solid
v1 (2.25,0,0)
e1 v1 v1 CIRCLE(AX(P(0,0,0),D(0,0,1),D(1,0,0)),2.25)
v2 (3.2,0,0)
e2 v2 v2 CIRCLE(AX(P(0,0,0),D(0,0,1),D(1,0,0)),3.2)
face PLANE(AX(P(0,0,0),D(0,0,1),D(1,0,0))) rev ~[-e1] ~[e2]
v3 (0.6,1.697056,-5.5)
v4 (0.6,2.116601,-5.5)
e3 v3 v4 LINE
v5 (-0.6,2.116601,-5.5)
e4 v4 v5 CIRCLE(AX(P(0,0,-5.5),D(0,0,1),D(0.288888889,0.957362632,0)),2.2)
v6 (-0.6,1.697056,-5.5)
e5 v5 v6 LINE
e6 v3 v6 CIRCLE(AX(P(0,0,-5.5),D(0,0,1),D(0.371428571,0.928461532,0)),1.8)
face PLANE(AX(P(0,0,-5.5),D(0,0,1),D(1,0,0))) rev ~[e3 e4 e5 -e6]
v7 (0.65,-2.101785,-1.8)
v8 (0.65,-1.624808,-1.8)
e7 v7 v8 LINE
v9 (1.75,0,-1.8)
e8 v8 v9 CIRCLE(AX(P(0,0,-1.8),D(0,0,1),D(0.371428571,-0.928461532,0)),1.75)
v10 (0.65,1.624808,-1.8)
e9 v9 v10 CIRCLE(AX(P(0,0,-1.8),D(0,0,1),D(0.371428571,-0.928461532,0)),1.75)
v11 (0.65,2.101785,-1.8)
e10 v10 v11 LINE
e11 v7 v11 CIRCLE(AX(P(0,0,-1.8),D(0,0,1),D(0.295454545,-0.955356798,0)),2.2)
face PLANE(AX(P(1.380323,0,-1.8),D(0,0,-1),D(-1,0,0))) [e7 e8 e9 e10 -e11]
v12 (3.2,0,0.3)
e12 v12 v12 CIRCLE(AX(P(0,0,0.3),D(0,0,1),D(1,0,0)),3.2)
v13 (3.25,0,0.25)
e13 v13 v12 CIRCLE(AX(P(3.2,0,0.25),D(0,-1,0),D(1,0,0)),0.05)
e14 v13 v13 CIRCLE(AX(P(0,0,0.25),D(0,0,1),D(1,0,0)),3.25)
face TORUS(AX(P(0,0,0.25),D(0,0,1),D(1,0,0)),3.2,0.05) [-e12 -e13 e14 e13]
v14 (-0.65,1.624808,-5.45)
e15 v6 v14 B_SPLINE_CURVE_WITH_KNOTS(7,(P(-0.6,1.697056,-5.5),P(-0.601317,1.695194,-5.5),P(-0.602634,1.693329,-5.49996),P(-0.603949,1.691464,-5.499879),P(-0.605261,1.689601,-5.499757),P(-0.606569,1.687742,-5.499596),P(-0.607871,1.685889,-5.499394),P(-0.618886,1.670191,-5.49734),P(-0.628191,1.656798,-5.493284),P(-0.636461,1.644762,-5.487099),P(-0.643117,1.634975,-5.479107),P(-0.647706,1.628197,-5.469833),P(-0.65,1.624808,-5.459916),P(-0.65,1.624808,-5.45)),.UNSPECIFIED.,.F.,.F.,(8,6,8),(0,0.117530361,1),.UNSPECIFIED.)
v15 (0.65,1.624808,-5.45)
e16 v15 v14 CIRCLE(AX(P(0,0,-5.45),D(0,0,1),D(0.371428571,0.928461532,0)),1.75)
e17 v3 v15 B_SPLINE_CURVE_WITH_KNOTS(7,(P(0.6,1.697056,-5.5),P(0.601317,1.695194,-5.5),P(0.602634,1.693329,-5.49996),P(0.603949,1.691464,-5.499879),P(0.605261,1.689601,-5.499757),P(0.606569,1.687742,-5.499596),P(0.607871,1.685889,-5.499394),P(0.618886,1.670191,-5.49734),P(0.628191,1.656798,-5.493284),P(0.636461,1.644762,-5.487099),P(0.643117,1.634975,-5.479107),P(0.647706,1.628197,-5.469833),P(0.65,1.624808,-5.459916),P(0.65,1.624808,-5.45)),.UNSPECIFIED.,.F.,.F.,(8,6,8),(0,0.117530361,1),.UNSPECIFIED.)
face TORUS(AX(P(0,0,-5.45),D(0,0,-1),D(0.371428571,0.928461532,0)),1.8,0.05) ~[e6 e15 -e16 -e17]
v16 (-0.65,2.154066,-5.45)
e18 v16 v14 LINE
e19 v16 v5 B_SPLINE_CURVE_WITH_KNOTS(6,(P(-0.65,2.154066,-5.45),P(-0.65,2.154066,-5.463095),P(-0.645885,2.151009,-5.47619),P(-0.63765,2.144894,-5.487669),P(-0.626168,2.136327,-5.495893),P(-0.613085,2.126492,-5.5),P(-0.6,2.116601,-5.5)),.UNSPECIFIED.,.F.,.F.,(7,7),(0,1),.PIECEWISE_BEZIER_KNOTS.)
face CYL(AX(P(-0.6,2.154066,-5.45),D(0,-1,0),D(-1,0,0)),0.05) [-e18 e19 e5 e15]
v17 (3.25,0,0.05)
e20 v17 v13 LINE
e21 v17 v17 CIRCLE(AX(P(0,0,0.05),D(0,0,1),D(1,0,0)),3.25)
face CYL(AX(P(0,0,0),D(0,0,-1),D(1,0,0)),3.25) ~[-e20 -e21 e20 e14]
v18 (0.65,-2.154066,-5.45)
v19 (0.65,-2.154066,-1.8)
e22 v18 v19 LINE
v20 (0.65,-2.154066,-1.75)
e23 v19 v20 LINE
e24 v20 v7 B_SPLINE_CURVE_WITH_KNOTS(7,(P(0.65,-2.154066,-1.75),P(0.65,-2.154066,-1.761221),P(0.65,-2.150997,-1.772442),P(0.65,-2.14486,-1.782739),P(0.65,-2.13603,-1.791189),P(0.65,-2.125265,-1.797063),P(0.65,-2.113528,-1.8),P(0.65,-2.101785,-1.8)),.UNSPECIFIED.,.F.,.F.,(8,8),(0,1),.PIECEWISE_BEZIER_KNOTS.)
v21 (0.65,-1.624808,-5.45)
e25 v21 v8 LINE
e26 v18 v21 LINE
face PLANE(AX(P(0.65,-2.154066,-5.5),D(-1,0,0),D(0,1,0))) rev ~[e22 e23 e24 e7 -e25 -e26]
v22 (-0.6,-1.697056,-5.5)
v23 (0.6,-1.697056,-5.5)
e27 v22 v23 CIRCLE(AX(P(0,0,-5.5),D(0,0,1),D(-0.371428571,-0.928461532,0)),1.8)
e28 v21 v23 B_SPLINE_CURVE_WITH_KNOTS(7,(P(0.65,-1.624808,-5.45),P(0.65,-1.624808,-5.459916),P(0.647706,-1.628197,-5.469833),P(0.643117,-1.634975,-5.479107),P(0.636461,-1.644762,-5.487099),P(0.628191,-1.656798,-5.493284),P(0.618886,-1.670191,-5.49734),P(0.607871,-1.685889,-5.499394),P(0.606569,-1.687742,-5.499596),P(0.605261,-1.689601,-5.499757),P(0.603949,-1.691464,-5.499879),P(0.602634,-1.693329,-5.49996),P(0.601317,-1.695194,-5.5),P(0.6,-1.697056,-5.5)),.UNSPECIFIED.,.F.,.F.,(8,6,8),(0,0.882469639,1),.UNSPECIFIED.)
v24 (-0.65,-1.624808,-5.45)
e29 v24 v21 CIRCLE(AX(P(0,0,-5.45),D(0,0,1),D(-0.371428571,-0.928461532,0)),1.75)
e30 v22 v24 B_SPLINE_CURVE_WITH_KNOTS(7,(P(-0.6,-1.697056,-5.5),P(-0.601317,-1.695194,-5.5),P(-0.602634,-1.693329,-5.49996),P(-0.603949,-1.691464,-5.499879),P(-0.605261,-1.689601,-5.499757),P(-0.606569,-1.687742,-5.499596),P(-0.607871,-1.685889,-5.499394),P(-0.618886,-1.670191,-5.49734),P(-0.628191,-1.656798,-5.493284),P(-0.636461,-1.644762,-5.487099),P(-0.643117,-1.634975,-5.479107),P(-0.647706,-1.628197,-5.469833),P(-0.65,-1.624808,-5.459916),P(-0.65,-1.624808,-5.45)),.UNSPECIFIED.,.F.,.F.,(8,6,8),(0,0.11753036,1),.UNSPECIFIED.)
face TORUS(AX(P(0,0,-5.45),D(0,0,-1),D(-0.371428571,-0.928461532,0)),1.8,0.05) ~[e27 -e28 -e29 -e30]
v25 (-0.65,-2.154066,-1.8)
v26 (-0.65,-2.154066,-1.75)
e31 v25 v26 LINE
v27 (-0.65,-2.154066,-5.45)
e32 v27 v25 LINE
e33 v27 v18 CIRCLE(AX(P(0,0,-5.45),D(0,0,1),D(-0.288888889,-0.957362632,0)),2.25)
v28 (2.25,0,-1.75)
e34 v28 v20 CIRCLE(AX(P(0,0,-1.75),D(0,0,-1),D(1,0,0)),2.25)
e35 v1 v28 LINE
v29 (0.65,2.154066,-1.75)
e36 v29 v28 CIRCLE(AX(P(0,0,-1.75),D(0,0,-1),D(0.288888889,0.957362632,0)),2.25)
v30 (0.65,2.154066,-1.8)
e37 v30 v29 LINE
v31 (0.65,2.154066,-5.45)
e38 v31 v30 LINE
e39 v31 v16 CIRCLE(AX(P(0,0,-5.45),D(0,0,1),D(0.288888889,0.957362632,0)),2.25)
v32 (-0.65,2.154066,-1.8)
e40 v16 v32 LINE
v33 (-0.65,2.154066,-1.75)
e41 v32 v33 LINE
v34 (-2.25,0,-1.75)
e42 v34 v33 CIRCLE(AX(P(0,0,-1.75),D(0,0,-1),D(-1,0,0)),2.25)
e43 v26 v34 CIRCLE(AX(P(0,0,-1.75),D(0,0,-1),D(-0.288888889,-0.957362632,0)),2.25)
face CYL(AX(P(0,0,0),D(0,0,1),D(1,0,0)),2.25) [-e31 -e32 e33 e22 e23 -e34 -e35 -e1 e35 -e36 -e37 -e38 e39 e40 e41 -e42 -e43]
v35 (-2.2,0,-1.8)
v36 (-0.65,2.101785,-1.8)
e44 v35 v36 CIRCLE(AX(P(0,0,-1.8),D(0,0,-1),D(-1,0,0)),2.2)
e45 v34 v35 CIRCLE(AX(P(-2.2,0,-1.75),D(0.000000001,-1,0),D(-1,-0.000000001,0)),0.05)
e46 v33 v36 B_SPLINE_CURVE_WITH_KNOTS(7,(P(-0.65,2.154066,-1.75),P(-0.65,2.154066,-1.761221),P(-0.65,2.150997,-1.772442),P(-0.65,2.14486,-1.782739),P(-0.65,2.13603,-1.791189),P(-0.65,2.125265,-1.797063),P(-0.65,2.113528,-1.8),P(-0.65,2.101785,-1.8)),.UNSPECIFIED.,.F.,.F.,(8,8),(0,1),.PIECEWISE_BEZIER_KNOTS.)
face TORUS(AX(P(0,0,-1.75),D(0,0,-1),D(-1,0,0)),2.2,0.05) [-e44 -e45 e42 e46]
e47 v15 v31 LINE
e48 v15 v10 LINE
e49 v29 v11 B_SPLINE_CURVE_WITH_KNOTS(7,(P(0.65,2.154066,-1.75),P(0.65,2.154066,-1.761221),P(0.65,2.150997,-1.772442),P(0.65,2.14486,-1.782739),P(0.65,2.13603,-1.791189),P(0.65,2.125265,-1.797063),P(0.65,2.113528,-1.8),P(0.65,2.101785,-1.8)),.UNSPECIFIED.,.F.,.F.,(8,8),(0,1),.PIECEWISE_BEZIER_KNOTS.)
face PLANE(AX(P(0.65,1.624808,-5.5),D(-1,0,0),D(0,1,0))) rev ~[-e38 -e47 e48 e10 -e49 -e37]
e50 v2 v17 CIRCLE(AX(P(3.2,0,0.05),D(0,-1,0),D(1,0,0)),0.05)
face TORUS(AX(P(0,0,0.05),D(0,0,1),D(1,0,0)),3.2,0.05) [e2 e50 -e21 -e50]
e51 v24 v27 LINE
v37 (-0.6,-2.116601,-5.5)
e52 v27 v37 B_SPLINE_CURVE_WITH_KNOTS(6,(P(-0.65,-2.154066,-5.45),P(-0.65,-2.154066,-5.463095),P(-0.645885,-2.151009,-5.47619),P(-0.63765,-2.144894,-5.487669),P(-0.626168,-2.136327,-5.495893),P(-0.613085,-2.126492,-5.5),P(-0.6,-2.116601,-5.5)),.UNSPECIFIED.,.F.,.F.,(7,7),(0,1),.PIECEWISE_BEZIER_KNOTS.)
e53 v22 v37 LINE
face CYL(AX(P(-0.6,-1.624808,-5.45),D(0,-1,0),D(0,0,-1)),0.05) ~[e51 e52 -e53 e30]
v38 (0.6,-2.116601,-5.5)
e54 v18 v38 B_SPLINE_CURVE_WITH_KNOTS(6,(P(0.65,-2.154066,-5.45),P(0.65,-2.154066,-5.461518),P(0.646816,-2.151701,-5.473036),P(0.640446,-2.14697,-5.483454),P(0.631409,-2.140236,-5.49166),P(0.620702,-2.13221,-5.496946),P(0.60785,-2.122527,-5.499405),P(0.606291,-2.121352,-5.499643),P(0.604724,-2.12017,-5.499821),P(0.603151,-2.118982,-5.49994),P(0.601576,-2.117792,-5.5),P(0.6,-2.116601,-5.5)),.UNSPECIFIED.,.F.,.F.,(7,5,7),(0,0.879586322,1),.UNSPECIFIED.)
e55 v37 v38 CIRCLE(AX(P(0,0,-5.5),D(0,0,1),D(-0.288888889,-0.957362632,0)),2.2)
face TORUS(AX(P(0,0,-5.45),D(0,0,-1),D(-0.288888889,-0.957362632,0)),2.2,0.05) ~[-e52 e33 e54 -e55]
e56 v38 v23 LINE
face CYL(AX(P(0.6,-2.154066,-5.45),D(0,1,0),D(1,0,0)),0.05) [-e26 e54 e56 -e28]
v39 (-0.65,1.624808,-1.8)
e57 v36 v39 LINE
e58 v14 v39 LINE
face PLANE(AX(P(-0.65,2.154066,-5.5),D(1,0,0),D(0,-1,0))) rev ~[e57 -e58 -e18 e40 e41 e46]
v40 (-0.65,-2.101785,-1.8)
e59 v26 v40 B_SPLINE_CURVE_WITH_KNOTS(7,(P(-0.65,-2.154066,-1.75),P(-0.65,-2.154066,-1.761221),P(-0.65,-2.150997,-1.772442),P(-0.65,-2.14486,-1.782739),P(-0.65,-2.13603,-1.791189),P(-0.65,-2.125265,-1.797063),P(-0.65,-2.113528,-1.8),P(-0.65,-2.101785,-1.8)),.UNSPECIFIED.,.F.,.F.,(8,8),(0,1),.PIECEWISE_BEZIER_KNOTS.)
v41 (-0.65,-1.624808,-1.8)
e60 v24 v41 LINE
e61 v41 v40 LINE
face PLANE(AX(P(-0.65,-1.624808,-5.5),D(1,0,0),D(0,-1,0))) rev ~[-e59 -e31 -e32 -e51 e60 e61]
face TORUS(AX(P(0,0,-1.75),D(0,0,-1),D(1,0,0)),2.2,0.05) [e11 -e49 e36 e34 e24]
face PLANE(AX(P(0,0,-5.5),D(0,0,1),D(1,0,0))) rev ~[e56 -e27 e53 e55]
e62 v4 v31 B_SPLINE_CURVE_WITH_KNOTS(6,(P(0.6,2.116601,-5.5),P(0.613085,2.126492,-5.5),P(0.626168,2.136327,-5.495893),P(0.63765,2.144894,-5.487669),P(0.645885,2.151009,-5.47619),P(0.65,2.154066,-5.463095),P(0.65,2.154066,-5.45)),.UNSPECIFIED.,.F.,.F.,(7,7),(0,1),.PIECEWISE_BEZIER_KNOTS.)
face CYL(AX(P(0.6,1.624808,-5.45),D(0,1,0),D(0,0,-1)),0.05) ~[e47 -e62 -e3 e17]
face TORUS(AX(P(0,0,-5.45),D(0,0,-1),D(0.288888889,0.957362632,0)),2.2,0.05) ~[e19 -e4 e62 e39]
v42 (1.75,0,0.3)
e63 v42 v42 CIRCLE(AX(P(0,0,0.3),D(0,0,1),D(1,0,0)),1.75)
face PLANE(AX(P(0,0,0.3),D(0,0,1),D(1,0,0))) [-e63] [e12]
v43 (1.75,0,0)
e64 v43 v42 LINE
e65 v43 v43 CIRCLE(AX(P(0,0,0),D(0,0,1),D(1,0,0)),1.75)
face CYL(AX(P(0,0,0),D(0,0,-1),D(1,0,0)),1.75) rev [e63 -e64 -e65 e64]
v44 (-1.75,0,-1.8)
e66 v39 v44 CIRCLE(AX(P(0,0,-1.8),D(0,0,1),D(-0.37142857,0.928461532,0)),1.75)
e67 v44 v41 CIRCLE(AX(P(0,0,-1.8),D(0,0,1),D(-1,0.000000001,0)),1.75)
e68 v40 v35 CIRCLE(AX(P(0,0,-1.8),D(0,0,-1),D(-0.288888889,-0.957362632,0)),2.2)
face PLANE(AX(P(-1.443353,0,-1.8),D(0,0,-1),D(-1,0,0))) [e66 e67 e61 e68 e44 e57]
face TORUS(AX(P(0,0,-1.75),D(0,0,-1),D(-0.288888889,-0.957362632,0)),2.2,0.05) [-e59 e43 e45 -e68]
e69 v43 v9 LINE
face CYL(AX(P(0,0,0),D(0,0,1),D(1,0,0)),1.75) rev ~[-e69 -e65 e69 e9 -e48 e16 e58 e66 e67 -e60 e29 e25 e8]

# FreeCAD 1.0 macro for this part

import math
import FreeCAD as App
import Part
import Sketcher


def edges_at(feature, points):
    """Names of the edges that pass closest to the given points."""
    edges = feature.Shape.Edges
    near = lambda p: min(range(len(edges)), key=lambda i: edges[i].distToShape(Part.Vertex(*p))[0])
    return sorted({f"Edge{near(p) + 1}" for p in points})

doc = App.newDocument("Part")
body = doc.addObject("PartDesign::Body", "Body")

# Sketch on XY plane
sketch1 = body.newObject("Sketcher::SketchObject", "Sketch")
sketch1.AttachmentSupport = (doc.getObject("XY_Plane"), [""])
sketch1.MapMode = "FlatFace"
sketch1.addGeometry([
    Part.Circle(App.Vector(0, 0, 0), App.Vector(0, 0, 1), 3.25),
    Part.Circle(App.Vector(0, 0, 0), App.Vector(0, 0, 1), 1.75),
], False)
sketch1.addConstraint([
    Sketcher.Constraint("Coincident", 0, 3, -1, 1),
    Sketcher.Constraint("Coincident", 1, 3, -1, 1),
    Sketcher.Constraint("Diameter", 0, 6.5),
    Sketcher.Constraint("Diameter", 1, 3.5),
])
pad1 = body.newObject("PartDesign::Pad", "Pad")
pad1.Profile = sketch1
pad1.Length = 0.3

# Sketch on XY plane
sketch2 = body.newObject("Sketcher::SketchObject", "Sketch001")
sketch2.AttachmentSupport = (doc.getObject("XY_Plane"), [""])
sketch2.MapMode = "FlatFace"
sketch2.addGeometry([
    Part.Circle(App.Vector(0, 0, 0), App.Vector(0, 0, 1), 2.25),
    Part.Circle(App.Vector(0, 0, 0), App.Vector(0, 0, 1), 1.75),
], False)
sketch2.addConstraint([
    Sketcher.Constraint("Coincident", 0, 3, -1, 1),
    Sketcher.Constraint("Coincident", 1, 3, -1, 1),
    Sketcher.Constraint("Diameter", 0, 4.5),
    Sketcher.Constraint("Diameter", 1, 3.5),
])
pad2 = body.newObject("PartDesign::Pad", "Pad001")
pad2.Profile = sketch2
pad2.Length = 5.5
pad2.Reversed = True

# Sketch on XY plane
sketch3 = body.newObject("Sketcher::SketchObject", "Sketch002")
sketch3.AttachmentSupport = (doc.getObject("XY_Plane"), [""])
sketch3.MapMode = "FlatFace"
sketch3.AttachmentOffset = App.Placement(App.Vector(0, 0, -5.5), App.Rotation())
sketch3.addGeometry([
    Part.ArcOfCircle(Part.Circle(App.Vector(0, 0, 0), App.Vector(0, 0, 1), 2.25), math.radians(-73.208553), math.radians(73.208553)),  # 0
    Part.LineSegment(App.Vector(0.65, -2.154066, 0), App.Vector(0.65, -1.624808, 0)),  # 1
    Part.ArcOfCircle(Part.Circle(App.Vector(0, 0, 0), App.Vector(0, 0, 1), 1.75), math.radians(-68.196252), math.radians(68.196252)),  # 2
    Part.LineSegment(App.Vector(0.65, 1.624808, 0), App.Vector(0.65, 2.154066, 0)),  # 3
    Part.LineSegment(App.Vector(-0.65, -1.624808, 0), App.Vector(-0.65, -2.154066, 0)),  # 4
    Part.ArcOfCircle(Part.Circle(App.Vector(0, 0, 0), App.Vector(0, 0, 1), 2.25), math.radians(-180), math.radians(-106.791447)),  # 5
    Part.ArcOfCircle(Part.Circle(App.Vector(0, 0, 0), App.Vector(0, 0, 1), 2.25), math.radians(106.791447), math.radians(180)),  # 6
    Part.LineSegment(App.Vector(-0.65, 2.154066, 0), App.Vector(-0.65, 1.624808, 0)),  # 7
    Part.ArcOfCircle(Part.Circle(App.Vector(0, 0, 0), App.Vector(0, 0, 1), 1.75), math.radians(111.803748), math.radians(180)),  # 8
    Part.ArcOfCircle(Part.Circle(App.Vector(0, 0, 0), App.Vector(0, 0, 1), 1.75), math.radians(180), math.radians(248.196252)),  # 9
], False)
sketch3.addConstraint([
    Sketcher.Constraint("Coincident", 0, 1, 1, 1),
    Sketcher.Constraint("Coincident", 1, 2, 2, 1),
    Sketcher.Constraint("Coincident", 2, 2, 3, 1),
    Sketcher.Constraint("Coincident", 3, 2, 0, 2),
    Sketcher.Constraint("Coincident", 4, 2, 5, 2),
    Sketcher.Constraint("Tangent", 5, 1, 6, 2),
    Sketcher.Constraint("Coincident", 6, 1, 7, 1),
    Sketcher.Constraint("Coincident", 7, 2, 8, 1),
    Sketcher.Constraint("Tangent", 8, 2, 9, 1),
    Sketcher.Constraint("Coincident", 9, 2, 4, 1),
    Sketcher.Constraint("Vertical", 1),
    Sketcher.Constraint("Vertical", 3),
    Sketcher.Constraint("Vertical", 4),
    Sketcher.Constraint("Vertical", 7),
    Sketcher.Constraint("Coincident", 0, 3, -1, 1),
    Sketcher.Constraint("Coincident", 2, 3, -1, 1),
    Sketcher.Constraint("Coincident", 5, 3, -1, 1),
    Sketcher.Constraint("Coincident", 8, 3, -1, 1),
    Sketcher.Constraint("Equal", 0, 5),
    Sketcher.Constraint("Equal", 5, 6),
    Sketcher.Constraint("Equal", 2, 8),
    Sketcher.Constraint("Equal", 8, 9),
    Sketcher.Constraint("PointOnObject", 5, 1, -1),
    Sketcher.Constraint("PointOnObject", 8, 2, -1),
    Sketcher.Constraint("Horizontal", 0, 1, 4, 2),
    Sketcher.Constraint("Horizontal", 3, 2, 6, 1),
    Sketcher.Constraint("Vertical", 1, 2, 2, 2),
    Sketcher.Constraint("Radius", 0, 2.25),
    Sketcher.Constraint("Radius", 2, 1.75),
    Sketcher.Constraint("DistanceX", 4, 2, 0, 1, 1.3),
])
pocket1 = body.newObject("PartDesign::Pocket", "Pocket")
pocket1.Profile = sketch3
pocket1.Length = 3.7
pocket1.Reversed = True
doc.recompute()

fillet = body.newObject("PartDesign::Fillet", "Fillet")
fillet.Base = (pocket1, edges_at(pocket1, [
    (0, 1.75, -5.5),
    (1.806, 1.342, -1.8),
    (0.65, -1.889, -5.5),
    (0.65, 1.889, -5.5),
    (0, -2.25, -5.5),
    (0, -1.75, -5.5),
    (-0.65, -1.889, -5.5),
    (-0.65, 1.889, -5.5),
    (-1.806, -1.342, -1.8),
    (-3.25, 0, 0),
    (-3.25, 0, 0.3),
    (0, 2.25, -5.5),
]))
fillet.Radius = 0.05

doc.recompute()
